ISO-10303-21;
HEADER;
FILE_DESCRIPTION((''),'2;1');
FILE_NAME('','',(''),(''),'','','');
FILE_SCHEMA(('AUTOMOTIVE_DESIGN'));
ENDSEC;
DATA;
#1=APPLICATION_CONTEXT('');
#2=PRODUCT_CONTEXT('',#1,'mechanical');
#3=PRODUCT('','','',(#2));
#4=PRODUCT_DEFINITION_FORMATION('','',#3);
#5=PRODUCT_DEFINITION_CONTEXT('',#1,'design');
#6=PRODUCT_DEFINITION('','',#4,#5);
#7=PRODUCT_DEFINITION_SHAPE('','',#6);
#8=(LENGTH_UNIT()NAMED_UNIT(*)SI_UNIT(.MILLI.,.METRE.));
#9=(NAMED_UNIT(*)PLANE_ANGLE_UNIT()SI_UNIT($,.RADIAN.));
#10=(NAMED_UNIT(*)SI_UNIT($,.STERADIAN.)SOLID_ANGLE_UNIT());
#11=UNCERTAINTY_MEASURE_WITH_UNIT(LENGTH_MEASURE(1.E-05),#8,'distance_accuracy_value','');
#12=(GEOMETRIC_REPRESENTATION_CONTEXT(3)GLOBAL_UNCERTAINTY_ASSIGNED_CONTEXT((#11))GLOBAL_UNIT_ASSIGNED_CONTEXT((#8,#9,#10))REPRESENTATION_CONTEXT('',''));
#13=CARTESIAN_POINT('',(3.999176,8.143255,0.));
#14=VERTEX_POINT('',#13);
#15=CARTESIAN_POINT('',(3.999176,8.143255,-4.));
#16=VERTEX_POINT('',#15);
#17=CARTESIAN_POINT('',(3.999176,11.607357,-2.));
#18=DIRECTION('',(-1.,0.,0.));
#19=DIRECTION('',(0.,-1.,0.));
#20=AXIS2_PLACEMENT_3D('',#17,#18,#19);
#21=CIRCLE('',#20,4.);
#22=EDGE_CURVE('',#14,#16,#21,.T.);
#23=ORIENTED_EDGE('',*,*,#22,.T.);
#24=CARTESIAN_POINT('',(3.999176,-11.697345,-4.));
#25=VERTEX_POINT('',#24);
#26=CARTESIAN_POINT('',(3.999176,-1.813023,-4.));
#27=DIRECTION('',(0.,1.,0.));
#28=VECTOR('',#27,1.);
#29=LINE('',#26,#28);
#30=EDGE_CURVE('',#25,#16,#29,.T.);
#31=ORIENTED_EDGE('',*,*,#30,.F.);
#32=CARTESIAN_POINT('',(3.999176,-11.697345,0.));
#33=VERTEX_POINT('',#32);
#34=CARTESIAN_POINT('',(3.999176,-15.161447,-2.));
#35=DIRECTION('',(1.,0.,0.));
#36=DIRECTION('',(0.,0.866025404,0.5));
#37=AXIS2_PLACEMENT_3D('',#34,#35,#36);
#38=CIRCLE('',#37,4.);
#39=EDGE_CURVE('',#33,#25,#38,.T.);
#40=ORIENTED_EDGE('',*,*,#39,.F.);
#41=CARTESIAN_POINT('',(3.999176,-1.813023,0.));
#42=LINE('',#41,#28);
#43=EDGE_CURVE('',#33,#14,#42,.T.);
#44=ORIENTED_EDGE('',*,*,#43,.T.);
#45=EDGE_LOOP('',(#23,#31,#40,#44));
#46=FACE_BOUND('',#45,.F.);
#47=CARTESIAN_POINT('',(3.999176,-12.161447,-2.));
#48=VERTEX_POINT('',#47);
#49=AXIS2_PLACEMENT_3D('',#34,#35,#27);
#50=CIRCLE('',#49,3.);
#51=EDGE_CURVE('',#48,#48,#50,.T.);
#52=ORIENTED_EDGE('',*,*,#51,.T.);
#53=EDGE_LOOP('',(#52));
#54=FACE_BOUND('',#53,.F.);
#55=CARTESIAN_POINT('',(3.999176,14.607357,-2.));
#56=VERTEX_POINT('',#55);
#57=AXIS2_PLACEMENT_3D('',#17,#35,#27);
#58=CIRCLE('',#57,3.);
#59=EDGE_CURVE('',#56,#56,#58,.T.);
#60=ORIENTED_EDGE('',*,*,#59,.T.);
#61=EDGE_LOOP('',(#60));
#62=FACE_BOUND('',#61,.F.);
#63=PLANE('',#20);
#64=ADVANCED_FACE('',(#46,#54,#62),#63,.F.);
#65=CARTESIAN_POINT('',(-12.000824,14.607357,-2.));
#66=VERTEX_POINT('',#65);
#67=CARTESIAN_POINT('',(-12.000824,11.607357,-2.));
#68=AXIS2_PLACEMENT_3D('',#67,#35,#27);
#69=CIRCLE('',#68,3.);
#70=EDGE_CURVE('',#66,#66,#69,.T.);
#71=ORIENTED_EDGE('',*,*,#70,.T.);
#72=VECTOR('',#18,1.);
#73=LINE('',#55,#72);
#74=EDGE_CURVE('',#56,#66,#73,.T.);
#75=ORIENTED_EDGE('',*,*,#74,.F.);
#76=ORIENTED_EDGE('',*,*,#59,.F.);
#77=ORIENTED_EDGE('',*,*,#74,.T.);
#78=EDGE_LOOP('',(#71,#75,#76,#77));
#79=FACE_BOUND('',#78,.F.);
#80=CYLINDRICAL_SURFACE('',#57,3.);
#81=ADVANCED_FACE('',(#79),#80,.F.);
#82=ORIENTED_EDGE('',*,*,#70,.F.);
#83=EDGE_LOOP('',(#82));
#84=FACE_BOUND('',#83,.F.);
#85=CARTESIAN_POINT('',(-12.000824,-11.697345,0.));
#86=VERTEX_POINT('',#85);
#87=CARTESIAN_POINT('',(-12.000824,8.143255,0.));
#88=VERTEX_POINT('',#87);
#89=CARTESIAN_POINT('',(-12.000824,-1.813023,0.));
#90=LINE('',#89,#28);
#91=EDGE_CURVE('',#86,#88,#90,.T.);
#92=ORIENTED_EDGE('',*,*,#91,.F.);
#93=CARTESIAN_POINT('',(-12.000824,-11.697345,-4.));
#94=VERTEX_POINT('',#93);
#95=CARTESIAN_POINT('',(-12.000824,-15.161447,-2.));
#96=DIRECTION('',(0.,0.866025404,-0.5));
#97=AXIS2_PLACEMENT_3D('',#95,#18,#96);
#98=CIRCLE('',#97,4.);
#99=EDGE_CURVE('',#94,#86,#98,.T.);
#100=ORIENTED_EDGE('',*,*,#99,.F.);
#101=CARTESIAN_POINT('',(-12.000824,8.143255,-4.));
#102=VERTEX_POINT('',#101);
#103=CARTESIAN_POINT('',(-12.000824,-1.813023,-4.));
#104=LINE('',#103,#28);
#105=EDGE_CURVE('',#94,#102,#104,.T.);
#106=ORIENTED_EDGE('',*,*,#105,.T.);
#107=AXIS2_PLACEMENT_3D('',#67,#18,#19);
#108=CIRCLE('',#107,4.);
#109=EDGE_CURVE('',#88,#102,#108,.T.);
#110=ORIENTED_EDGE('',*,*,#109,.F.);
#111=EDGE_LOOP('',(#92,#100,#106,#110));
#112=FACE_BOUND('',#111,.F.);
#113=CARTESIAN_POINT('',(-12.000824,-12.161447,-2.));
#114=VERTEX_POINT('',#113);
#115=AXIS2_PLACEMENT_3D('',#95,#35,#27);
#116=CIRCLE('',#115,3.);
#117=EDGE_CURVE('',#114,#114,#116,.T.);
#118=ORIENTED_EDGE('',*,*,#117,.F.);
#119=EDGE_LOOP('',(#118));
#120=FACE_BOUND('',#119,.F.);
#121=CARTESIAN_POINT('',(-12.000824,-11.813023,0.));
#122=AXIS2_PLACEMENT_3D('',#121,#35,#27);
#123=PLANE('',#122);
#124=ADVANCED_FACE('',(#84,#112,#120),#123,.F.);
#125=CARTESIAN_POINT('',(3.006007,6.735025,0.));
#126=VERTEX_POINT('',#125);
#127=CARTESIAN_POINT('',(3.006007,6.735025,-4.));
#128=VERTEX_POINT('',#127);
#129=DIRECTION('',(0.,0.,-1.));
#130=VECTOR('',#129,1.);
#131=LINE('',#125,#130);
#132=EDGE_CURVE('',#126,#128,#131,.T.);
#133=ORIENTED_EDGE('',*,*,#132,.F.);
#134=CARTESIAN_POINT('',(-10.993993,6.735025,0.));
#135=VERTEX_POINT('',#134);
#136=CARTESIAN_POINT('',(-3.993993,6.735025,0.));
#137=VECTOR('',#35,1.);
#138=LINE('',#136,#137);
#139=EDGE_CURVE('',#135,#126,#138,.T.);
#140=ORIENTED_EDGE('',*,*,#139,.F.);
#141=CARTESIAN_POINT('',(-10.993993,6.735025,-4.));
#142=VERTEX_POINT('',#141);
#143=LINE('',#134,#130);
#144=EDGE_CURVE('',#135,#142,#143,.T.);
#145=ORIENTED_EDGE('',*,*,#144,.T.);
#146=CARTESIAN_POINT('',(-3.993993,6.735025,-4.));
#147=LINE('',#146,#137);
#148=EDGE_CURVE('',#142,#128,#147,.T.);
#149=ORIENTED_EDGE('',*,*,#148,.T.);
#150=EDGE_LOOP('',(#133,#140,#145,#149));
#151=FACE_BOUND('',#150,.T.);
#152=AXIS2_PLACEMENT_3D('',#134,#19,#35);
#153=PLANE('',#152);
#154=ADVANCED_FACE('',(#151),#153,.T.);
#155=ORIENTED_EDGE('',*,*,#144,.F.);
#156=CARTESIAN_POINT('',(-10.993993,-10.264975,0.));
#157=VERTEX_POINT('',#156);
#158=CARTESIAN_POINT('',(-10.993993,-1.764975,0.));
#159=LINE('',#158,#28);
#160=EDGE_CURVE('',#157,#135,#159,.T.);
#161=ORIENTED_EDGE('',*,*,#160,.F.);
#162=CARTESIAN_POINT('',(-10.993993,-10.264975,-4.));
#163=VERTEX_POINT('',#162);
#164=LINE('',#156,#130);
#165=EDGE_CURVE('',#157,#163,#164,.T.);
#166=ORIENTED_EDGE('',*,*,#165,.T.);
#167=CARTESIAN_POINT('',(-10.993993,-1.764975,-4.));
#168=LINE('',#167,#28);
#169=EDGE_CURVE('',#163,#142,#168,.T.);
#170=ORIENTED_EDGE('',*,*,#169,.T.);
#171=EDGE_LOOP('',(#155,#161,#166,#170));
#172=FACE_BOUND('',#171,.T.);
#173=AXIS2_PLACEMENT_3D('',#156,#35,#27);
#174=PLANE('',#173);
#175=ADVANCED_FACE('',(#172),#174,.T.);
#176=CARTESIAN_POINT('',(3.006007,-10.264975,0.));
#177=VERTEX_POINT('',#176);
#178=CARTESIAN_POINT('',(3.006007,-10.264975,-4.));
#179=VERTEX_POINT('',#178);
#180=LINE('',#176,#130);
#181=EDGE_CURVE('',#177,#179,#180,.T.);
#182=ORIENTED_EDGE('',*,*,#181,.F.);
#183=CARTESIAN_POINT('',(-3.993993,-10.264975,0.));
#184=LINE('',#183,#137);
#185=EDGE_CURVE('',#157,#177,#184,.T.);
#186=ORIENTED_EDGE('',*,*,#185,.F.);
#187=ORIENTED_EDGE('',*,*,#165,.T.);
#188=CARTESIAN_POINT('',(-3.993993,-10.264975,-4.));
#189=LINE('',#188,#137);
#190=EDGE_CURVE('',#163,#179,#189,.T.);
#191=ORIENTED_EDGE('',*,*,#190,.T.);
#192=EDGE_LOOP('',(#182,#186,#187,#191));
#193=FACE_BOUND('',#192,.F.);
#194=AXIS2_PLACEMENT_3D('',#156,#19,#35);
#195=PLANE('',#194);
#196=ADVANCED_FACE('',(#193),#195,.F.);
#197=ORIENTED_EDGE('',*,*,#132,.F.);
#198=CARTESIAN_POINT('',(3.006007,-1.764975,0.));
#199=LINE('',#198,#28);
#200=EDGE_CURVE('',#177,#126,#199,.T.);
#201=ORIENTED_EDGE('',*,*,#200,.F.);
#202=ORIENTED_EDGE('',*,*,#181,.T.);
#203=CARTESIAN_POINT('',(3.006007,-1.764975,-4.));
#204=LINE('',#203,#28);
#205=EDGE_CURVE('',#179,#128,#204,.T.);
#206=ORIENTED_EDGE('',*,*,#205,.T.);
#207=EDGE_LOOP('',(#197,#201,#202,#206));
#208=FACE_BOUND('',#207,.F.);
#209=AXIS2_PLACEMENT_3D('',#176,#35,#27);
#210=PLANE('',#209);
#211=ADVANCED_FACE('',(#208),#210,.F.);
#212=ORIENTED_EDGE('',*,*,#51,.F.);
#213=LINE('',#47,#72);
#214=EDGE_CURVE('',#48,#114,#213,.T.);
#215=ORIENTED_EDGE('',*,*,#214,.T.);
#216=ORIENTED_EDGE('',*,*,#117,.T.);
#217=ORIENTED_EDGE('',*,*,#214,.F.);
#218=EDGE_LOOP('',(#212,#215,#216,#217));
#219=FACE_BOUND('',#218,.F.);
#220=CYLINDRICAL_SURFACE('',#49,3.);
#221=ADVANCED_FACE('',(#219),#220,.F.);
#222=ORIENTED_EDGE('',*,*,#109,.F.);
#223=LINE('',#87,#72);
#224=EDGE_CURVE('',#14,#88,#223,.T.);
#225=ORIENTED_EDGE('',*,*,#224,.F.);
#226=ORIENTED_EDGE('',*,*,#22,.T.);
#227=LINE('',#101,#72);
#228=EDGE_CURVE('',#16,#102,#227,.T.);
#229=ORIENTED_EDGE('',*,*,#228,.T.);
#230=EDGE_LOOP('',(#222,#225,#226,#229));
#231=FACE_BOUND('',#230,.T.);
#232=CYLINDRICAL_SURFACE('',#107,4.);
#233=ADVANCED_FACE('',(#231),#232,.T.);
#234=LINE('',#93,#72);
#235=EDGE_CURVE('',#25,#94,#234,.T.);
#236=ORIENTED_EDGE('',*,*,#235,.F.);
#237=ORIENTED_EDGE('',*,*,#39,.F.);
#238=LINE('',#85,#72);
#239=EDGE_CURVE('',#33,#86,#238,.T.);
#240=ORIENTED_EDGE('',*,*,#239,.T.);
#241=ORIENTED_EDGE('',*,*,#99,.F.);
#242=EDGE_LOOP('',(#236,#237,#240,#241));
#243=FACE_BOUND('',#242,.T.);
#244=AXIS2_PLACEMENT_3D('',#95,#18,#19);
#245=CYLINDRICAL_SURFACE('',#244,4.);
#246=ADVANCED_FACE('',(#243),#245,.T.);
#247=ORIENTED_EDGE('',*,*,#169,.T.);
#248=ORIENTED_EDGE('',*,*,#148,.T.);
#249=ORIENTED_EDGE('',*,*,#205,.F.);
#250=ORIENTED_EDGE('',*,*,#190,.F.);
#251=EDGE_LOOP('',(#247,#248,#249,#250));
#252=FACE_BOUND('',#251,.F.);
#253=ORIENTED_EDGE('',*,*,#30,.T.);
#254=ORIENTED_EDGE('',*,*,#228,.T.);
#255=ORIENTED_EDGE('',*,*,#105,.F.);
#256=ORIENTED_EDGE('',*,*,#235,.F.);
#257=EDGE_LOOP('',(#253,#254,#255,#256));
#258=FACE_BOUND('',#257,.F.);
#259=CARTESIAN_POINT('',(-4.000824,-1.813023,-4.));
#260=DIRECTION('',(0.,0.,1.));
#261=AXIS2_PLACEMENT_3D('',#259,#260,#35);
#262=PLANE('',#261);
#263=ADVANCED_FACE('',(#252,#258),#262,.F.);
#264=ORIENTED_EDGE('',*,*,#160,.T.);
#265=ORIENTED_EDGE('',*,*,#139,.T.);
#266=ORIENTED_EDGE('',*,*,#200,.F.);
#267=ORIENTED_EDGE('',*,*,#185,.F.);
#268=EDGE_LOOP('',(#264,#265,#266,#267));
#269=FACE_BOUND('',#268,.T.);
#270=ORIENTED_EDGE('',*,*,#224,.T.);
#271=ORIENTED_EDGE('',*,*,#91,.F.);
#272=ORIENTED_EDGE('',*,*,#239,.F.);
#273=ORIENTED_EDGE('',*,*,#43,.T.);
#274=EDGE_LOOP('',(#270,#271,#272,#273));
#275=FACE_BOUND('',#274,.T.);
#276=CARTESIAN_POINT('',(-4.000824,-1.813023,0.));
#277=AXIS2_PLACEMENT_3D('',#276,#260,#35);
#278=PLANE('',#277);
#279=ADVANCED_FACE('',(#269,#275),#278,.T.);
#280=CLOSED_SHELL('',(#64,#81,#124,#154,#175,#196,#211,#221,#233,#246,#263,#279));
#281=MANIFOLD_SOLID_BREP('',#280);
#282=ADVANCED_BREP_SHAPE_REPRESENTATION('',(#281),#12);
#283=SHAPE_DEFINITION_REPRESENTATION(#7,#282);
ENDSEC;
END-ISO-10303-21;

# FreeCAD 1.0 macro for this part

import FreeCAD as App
import Part
import Sketcher
from FreeCAD import Vector
Q = App.Units.Quantity


def add_polygon(sketch, points):
    """Adds a closed chain of lines whose ends are joined by coincident constraints."""
    first, n = sketch.GeometryCount, len(points)
    for a, b in zip(points, points[1:] + points[:1]):
        sketch.addGeometry(Part.LineSegment(App.Vector(*a, 0), App.Vector(*b, 0)), False)
    for i in range(n):
        sketch.addConstraint(Sketcher.Constraint("Coincident", first + i, 2, first + (i + 1) % n, 1))

doc = App.newDocument("Part")
params = doc.addObject("Spreadsheet::Sheet", "Params")
for row, (alias, value) in enumerate([
    ("sketch1_width", "16 mm"),
    ("sketch1_width2", "14 mm"),
    ("sketch1_height", "20 mm"),
    ("sketch1_height2", "17 mm"),
    ("pad1_length", "4 mm"),
    ("sketch2_diameter", "8 mm"),
    ("pad2_length", "16 mm"),
    ("sketch3_diameter", "6 mm"),
    ("pocket1_length", "16 mm"),
], start=1):
    params.set(f"A{row}", alias)
    params.set(f"B{row}", "=" + value)
    params.setAlias(f"B{row}", alias)

body = doc.addObject("PartDesign::Body", "Body")

sketch1 = doc.addObject("Sketcher::SketchObject", "Sketch")
body.addObject(sketch1)
sketch1.AttachmentSupport = (doc.XY_Plane, [""])
sketch1.MapMode = "FlatFace"
add_polygon(sketch1, [(-12, 8), (-12, -12), (4, -12), (4, 8)])
add_polygon(sketch1, [(3, -10), (-11, -10), (-11, 7), (3, 7)])
sketch1.addConstraint(Sketcher.Constraint("Vertical", 0))
sketch1.addConstraint(Sketcher.Constraint("Horizontal", 1))
sketch1.addConstraint(Sketcher.Constraint("Vertical", 2))
sketch1.addConstraint(Sketcher.Constraint("Horizontal", 3))
sketch1.addConstraint(Sketcher.Constraint("Horizontal", 4))
sketch1.addConstraint(Sketcher.Constraint("Vertical", 5))
sketch1.addConstraint(Sketcher.Constraint("Horizontal", 6))
sketch1.addConstraint(Sketcher.Constraint("Vertical", 7))
sketch1.addConstraint(Sketcher.Constraint("DistanceX", 1, 1, 1, 2, Q("16 mm")))
sketch1.addConstraint(Sketcher.Constraint("DistanceX", 4, 2, 4, 1, Q("14 mm")))
sketch1.addConstraint(Sketcher.Constraint("DistanceY", 0, 2, 0, 1, Q("20 mm")))
sketch1.addConstraint(Sketcher.Constraint("DistanceY", 5, 1, 5, 2, Q("17 mm")))
sketch1.addConstraint(Sketcher.Constraint("DistanceX", 0, 2, 4, 2, Q("1.006831 mm")))
sketch1.addConstraint(Sketcher.Constraint("DistanceY", 4, 2, 3, 2, Q("18.451952 mm")))
sketch1.addConstraint(Sketcher.Constraint("DistanceX", 0, 2, -1, 1, Q("12.000824 mm")))
sketch1.addConstraint(Sketcher.Constraint("DistanceY", 0, 2, -1, 1, Q("11.813023 mm")))
sketch1.setExpression("Constraints[16]", "Params.sketch1_width")
sketch1.setExpression("Constraints[17]", "Params.sketch1_width2")
sketch1.setExpression("Constraints[18]", "Params.sketch1_height")
sketch1.setExpression("Constraints[19]", "Params.sketch1_height2")
pad1 = doc.addObject("PartDesign::Pad", "Pad")
body.addObject(pad1)
pad1.Profile = sketch1
pad1.setExpression("Length", "Params.pad1_length")
pad1.Reversed = True

sketch2 = doc.addObject("Sketcher::SketchObject", "Sketch001")
body.addObject(sketch2)
sketch2.AttachmentSupport = (doc.YZ_Plane, [""])
sketch2.MapMode = "FlatFace"
sketch2.AttachmentOffset = App.Placement(Vector(0, 0, -12.000824), App.Rotation())
sketch2.addGeometry(Part.Circle(Vector(11.6, -2, 0), Vector(0, 0, 1), 4), False)
sketch2.addGeometry(Part.Circle(Vector(-15.2, -2, 0), Vector(0, 0, 1), 4), False)
sketch2.addConstraint(Sketcher.Constraint("Equal", 0, 1))
sketch2.addConstraint(Sketcher.Constraint("Horizontal", 0, 3, 1, 3))
sketch2.addConstraint(Sketcher.Constraint("Diameter", 0, Q("8 mm")))
sketch2.addConstraint(Sketcher.Constraint("DistanceY", 0, 3, -1, 1, Q("2 mm")))
sketch2.addConstraint(Sketcher.Constraint("DistanceX", -1, 1, 0, 3, Q("11.607357 mm")))
sketch2.addConstraint(Sketcher.Constraint("DistanceX", 1, 3, -1, 1, Q("15.161447 mm")))
sketch2.setExpression("Constraints[2]", "Params.sketch2_diameter")
pad2 = doc.addObject("PartDesign::Pad", "Pad001")
body.addObject(pad2)
pad2.Profile = sketch2
pad2.setExpression("Length", "Params.pad2_length")

sketch3 = doc.addObject("Sketcher::SketchObject", "Sketch002")
body.addObject(sketch3)
sketch3.AttachmentSupport = (doc.YZ_Plane, [""])
sketch3.MapMode = "FlatFace"
sketch3.AttachmentOffset = App.Placement(Vector(0, 0, 3.999176), App.Rotation())
sketch3.addGeometry(Part.Circle(Vector(-15.2, -2, 0), Vector(0, 0, 1), 3), False)
sketch3.addGeometry(Part.Circle(Vector(11.6, -2, 0), Vector(0, 0, 1), 3), False)
sketch3.addConstraint(Sketcher.Constraint("Equal", 0, 1))
sketch3.addConstraint(Sketcher.Constraint("Horizontal", 0, 3, 1, 3))
sketch3.addConstraint(Sketcher.Constraint("Diameter", 0, Q("6 mm")))
sketch3.addConstraint(Sketcher.Constraint("DistanceY", 0, 3, -1, 1, Q("2 mm")))
sketch3.addConstraint(Sketcher.Constraint("DistanceX", 0, 3, -1, 1, Q("15.161447 mm")))
sketch3.addConstraint(Sketcher.Constraint("DistanceX", -1, 1, 1, 3, Q("11.607357 mm")))
sketch3.setExpression("Constraints[2]", "Params.sketch3_diameter")
pocket1 = doc.addObject("PartDesign::Pocket", "Pocket")
body.addObject(pocket1)
pocket1.Profile = sketch3
pocket1.setExpression("Length", "Params.pocket1_length")

doc.recompute()
